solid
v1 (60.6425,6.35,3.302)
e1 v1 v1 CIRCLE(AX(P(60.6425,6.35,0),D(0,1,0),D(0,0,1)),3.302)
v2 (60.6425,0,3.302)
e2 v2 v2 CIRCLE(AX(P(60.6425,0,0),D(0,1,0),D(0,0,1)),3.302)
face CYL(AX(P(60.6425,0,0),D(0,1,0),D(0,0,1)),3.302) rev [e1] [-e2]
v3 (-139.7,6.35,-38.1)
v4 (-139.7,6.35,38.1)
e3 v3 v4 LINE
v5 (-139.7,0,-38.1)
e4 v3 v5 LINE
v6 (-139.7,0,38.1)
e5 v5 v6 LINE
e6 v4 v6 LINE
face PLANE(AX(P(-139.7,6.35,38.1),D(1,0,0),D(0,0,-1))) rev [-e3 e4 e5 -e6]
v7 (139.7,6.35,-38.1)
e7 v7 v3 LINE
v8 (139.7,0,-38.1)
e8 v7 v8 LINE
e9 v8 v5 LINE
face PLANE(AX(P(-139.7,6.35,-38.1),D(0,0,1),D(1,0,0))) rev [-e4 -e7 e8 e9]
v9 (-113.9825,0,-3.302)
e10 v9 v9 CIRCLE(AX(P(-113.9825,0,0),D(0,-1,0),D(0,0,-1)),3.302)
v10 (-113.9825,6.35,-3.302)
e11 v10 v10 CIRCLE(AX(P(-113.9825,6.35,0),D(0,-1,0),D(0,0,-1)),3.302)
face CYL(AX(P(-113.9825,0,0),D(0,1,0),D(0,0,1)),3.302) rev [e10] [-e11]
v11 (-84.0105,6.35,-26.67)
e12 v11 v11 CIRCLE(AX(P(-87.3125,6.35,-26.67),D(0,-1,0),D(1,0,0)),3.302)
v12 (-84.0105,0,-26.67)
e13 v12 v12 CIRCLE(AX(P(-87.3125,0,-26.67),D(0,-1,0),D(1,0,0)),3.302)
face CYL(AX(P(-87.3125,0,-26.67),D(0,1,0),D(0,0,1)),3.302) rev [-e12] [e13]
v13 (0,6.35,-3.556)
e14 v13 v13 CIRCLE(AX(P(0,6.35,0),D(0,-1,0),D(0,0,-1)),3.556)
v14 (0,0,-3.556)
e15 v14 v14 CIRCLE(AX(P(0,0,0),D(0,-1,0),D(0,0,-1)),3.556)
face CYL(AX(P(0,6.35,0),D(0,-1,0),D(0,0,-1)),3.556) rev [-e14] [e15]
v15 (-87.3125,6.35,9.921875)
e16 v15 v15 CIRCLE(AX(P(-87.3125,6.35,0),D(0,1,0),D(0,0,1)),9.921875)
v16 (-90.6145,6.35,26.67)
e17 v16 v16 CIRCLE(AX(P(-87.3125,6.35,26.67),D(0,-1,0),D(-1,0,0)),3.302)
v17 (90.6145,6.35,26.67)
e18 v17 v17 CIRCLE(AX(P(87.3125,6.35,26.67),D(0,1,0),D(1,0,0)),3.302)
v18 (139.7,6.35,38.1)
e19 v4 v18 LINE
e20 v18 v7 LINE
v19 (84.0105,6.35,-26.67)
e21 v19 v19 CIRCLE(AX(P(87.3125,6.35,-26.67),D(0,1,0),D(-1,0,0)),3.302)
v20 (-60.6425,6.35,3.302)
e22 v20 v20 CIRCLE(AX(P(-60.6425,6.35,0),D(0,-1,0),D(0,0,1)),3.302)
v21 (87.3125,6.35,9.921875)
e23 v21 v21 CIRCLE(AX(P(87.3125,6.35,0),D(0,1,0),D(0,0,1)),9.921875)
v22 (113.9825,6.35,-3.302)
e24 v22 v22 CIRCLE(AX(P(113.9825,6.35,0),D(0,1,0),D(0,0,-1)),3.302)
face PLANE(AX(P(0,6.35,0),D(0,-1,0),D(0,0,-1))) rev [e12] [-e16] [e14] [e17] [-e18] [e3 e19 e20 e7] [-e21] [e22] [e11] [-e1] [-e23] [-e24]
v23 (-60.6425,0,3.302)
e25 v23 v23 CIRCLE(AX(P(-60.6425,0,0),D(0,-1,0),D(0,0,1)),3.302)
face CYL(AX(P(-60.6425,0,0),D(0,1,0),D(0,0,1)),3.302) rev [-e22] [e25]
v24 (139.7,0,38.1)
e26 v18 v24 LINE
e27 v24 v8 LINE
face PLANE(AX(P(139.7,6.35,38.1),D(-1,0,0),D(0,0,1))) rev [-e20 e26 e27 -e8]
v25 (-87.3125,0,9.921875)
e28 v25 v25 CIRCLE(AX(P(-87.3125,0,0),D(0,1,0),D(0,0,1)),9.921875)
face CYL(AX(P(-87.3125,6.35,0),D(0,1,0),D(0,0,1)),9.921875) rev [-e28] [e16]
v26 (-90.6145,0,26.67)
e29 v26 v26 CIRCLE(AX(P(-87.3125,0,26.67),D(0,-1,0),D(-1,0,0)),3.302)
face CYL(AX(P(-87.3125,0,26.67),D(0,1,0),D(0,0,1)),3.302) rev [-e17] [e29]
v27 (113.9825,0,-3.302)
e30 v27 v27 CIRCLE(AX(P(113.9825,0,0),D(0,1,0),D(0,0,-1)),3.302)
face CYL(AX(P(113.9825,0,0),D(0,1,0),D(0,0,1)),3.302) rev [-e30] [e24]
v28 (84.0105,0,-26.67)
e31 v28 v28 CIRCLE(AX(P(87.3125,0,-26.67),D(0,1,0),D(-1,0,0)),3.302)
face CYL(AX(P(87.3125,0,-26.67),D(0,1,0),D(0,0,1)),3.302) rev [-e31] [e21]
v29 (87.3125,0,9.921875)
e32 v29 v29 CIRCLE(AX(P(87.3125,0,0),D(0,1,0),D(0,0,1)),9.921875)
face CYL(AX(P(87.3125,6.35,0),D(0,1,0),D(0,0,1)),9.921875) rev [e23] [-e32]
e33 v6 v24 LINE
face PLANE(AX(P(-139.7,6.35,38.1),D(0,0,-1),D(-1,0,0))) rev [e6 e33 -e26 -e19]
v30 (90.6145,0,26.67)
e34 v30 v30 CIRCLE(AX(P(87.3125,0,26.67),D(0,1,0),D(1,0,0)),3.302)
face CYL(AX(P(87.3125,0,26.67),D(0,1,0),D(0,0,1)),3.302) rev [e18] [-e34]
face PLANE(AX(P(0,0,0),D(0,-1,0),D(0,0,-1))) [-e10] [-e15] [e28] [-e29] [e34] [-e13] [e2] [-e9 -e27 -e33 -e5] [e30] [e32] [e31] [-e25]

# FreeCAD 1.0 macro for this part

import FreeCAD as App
import Part
import Sketcher
from FreeCAD import Vector
Q = App.Units.Quantity

doc = App.newDocument("Part")
body = doc.addObject("PartDesign::Body", "Body")

sketch1 = doc.addObject("Sketcher::SketchObject", "Sketch")
body.addObject(sketch1)
sketch1.AttachmentSupport = (doc.XZ_Plane, [""])
sketch1.MapMode = "FlatFace"
sketch1.addGeometry(Part.LineSegment(Vector(-140, -38, 0), Vector(-140, 38, 0)), False)
sketch1.addGeometry(Part.LineSegment(Vector(-140, 38, 0), Vector(140, 38, 0)), False)
sketch1.addGeometry(Part.LineSegment(Vector(140, 38, 0), Vector(140, -38, 0)), False)
sketch1.addGeometry(Part.LineSegment(Vector(140, -38, 0), Vector(-140, -38, 0)), False)
sketch1.addConstraint(Sketcher.Constraint("Coincident", 0, 2, 1, 1))
sketch1.addConstraint(Sketcher.Constraint("Coincident", 1, 2, 2, 1))
sketch1.addConstraint(Sketcher.Constraint("Coincident", 2, 2, 3, 1))
sketch1.addConstraint(Sketcher.Constraint("Coincident", 3, 2, 0, 1))
sketch1.addConstraint(Sketcher.Constraint("Vertical", 0))
sketch1.addConstraint(Sketcher.Constraint("Horizontal", 1))
sketch1.addConstraint(Sketcher.Constraint("Vertical", 2))
sketch1.addConstraint(Sketcher.Constraint("Horizontal", 3))
sketch1.addConstraint(Sketcher.Constraint("Symmetric", 0, 2, 2, 2, -1, 1))
sketch1.addConstraint(Sketcher.Constraint("DistanceX", 1, 1, 1, 2, Q("11 in")))
sketch1.addConstraint(Sketcher.Constraint("DistanceY", 0, 1, 0, 2, Q("3 in")))
pad1 = doc.addObject("PartDesign::Pad", "Pad")
body.addObject(pad1)
pad1.Profile = sketch1
pad1.Length = Q("0.25 in")
pad1.Reversed = True

sketch2 = doc.addObject("Sketcher::SketchObject", "Sketch001")
body.addObject(sketch2)
sketch2.AttachmentSupport = (doc.XZ_Plane, [""])
sketch2.MapMode = "FlatFace"
sketch2.AttachmentOffset = App.Placement(Vector(0, 0, -0.25 * 25.4), App.Rotation())
sketch2.addGeometry(Part.Circle(Vector(87, 0, 0), Vector(0, 0, 1), 10), False)
sketch2.addConstraint(Sketcher.Constraint("PointOnObject", 0, 3, -1))
sketch2.addConstraint(Sketcher.Constraint("Diameter", 0, Q("0.78125 in")))
sketch2.addConstraint(Sketcher.Constraint("DistanceX", -1, 1, 0, 3, Q("3.4375 in")))
doc.recompute()
hole = doc.addObject("PartDesign::Hole", "Hole")
body.addObject(hole)
hole.Profile = sketch2
hole.ThreadType = "None"
hole.Diameter = Q("0.78125 in")
hole.DepthType = "ThroughAll"
hole.Reversed = True

sketch3 = doc.addObject("Sketcher::SketchObject", "Sketch002")
body.addObject(sketch3)
sketch3.AttachmentSupport = (doc.XZ_Plane, [""])
sketch3.MapMode = "FlatFace"
sketch3.AttachmentOffset = App.Placement(Vector(0, 0, -0.25 * 25.4), App.Rotation())
sketch3.addGeometry(Part.Circle(Vector(60.6, 0, 0), Vector(0, 0, 1), 3.3), False)
sketch3.addConstraint(Sketcher.Constraint("PointOnObject", 0, 3, -1))
sketch3.addConstraint(Sketcher.Constraint("Diameter", 0, Q("0.26 in")))
sketch3.addConstraint(Sketcher.Constraint("DistanceX", -1, 1, 0, 3, Q("2.3875 in")))
pocket1 = doc.addObject("PartDesign::Pocket", "Pocket")
body.addObject(pocket1)
pocket1.Profile = sketch3
pocket1.Length = Q("0.25 in")
pocket1.Reversed = True
doc.recompute()

datumline = doc.addObject("PartDesign::Line", "DatumLine")
body.addObject(datumline)
datumline.Placement = App.Placement(Vector(87.3125, 0, 0), App.Rotation(Vector(0, 0, 1), Vector(0, 1, 0)))
polarpattern = doc.addObject("PartDesign::PolarPattern", "PolarPattern")
body.addObject(polarpattern)
polarpattern.Originals = [pocket1]
polarpattern.Axis = (datumline, [""])
polarpattern.Angle = 360
polarpattern.Occurrences = 4
body.Tip = polarpattern
doc.recompute()

mirrored = doc.addObject("PartDesign::Mirrored", "Mirrored")
body.addObject(mirrored)
mirrored.Originals = [hole, pocket1]
mirrored.MirrorPlane = (doc.YZ_Plane, [""])
body.Tip = mirrored

sketch4 = doc.addObject("Sketcher::SketchObject", "Sketch003")
body.addObject(sketch4)
sketch4.AttachmentSupport = (doc.XZ_Plane, [""])
sketch4.MapMode = "FlatFace"
sketch4.AttachmentOffset = App.Placement(Vector(0, 0, -0.25 * 25.4), App.Rotation())
sketch4.addGeometry(Part.Circle(Vector(-87.3, 26.7, 0), Vector(0, 0, 1), 3.3), False)
sketch4.addConstraint(Sketcher.Constraint("Diameter", 0, Q("0.26 in")))
sketch4.addConstraint(Sketcher.Constraint("DistanceY", -1, 1, 0, 3, Q("1.05 in")))
sketch4.addConstraint(Sketcher.Constraint("DistanceX", 0, 3, -1, 1, Q("3.4375 in")))
pocket2 = doc.addObject("PartDesign::Pocket", "Pocket001")
body.addObject(pocket2)
pocket2.Profile = sketch4
pocket2.Length = Q("0.25 in")
pocket2.Reversed = True

sketch5 = doc.addObject("Sketcher::SketchObject", "Sketch004")
body.addObject(sketch5)
sketch5.AttachmentSupport = (doc.XZ_Plane, [""])
sketch5.MapMode = "FlatFace"
sketch5.AttachmentOffset = App.Placement(Vector(0, 0, -0.25 * 25.4), App.Rotation())
sketch5.addGeometry(Part.Circle(Vector(-114, 0, 0), Vector(0, 0, 1), 3.3), False)
sketch5.addConstraint(Sketcher.Constraint("PointOnObject", 0, 3, -1))
sketch5.addConstraint(Sketcher.Constraint("Diameter", 0, Q("0.26 in")))
sketch5.addConstraint(Sketcher.Constraint("DistanceX", 0, 3, -1, 1, Q("4.4875 in")))
pocket3 = doc.addObject("PartDesign::Pocket", "Pocket002")
body.addObject(pocket3)
pocket3.Profile = sketch5
pocket3.Length = Q("0.25 in")
pocket3.Reversed = True

sketch6 = doc.addObject("Sketcher::SketchObject", "Sketch005")
body.addObject(sketch6)
sketch6.AttachmentSupport = (doc.XZ_Plane, [""])
sketch6.MapMode = "FlatFace"
sketch6.AttachmentOffset = App.Placement(Vector(0, 0, -0.25 * 25.4), App.Rotation())
sketch6.addGeometry(Part.Circle(Vector(-87.3, -26.7, 0), Vector(0, 0, 1), 3.3), False)
sketch6.addConstraint(Sketcher.Constraint("Diameter", 0, Q("0.26 in")))
sketch6.addConstraint(Sketcher.Constraint("DistanceY", 0, 3, -1, 1, Q("1.05 in")))
sketch6.addConstraint(Sketcher.Constraint("DistanceX", 0, 3, -1, 1, Q("3.4375 in")))
pocket4 = doc.addObject("PartDesign::Pocket", "Pocket003")
body.addObject(pocket4)
pocket4.Profile = sketch6
pocket4.Length = Q("0.25 in")
pocket4.Reversed = True

sketch7 = doc.addObject("Sketcher::SketchObject", "Sketch006")
body.addObject(sketch7)
sketch7.AttachmentSupport = (doc.XZ_Plane, [""])
sketch7.MapMode = "FlatFace"
sketch7.addGeometry(Part.Circle(Vector(0, 0, 0), Vector(0, 0, 1), 3.6), False)
sketch7.addConstraint(Sketcher.Constraint("Coincident", 0, 3, -1, 1))
sketch7.addConstraint(Sketcher.Constraint("Diameter", 0, Q("0.28 in")))
pocket5 = doc.addObject("PartDesign::Pocket", "Pocket004")
body.addObject(pocket5)
pocket5.Profile = sketch7
pocket5.Length = Q("0.25 in")

doc.recompute()
